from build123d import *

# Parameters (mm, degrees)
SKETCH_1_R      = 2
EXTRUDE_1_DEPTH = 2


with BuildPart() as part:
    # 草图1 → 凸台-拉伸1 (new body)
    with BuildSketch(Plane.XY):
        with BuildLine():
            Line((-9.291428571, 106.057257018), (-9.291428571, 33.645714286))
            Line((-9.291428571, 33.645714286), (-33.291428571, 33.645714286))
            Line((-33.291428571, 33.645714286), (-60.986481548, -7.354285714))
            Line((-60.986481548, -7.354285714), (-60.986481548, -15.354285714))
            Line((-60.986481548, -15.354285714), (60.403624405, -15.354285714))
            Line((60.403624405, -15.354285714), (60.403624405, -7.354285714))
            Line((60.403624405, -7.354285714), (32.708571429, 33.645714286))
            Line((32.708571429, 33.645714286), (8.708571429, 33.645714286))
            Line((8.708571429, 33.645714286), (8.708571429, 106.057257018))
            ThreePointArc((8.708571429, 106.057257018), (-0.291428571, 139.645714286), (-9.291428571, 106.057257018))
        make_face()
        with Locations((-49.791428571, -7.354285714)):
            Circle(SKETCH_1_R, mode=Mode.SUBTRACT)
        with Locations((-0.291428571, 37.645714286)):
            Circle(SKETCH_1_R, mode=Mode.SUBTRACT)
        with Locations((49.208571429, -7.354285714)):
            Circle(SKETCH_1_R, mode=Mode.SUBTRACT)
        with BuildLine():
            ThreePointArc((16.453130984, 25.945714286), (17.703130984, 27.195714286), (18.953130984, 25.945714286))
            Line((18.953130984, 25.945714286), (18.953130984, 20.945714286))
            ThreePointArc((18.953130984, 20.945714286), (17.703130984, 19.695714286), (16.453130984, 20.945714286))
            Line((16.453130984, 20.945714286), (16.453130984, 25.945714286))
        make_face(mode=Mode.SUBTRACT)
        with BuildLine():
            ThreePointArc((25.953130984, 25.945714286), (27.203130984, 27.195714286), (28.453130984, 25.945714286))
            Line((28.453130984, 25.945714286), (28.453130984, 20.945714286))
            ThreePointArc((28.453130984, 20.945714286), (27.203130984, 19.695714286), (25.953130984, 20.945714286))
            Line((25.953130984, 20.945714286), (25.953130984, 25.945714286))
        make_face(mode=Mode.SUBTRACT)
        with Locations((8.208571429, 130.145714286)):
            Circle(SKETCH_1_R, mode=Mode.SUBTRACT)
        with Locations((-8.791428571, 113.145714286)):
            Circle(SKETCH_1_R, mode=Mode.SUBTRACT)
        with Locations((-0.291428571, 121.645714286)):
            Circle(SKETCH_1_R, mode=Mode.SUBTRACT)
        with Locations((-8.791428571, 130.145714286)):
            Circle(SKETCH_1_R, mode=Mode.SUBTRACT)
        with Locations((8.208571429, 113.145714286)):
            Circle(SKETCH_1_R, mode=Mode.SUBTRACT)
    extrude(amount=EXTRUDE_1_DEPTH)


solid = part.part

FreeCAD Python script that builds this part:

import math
import FreeCAD as App
import Part
import Sketcher

V = App.Vector

doc = App.newDocument("Part")
body = doc.addObject("PartDesign::Body", "Body")

# Sketch on XY plane
sketch1 = doc.addObject("Sketcher::SketchObject", "Sketch")
body.addObject(sketch1)
sketch1.AttachmentSupport = (doc.XY_Plane, [""])
sketch1.MapMode = "FlatFace"
sketch1.addGeometry(Part.LineSegment(V(-9.3, 106.1, 0), V(-9.3, 33.6, 0)), False)
sketch1.addGeometry(Part.LineSegment(V(-9.3, 33.6, 0), V(-33.3, 33.6, 0)), False)
sketch1.addGeometry(Part.LineSegment(V(-33.3, 33.6, 0), V(-61, -7.4, 0)), False)
sketch1.addGeometry(Part.LineSegment(V(-61, -7.4, 0), V(-61, -15.4, 0)), False)
sketch1.addGeometry(Part.LineSegment(V(-61, -15.4, 0), V(60.4, -15.4, 0)), False)
sketch1.addGeometry(Part.LineSegment(V(60.4, -15.4, 0), V(60.4, -7.4, 0)), False)
sketch1.addGeometry(Part.LineSegment(V(60.4, -7.4, 0), V(32.7, 33.6, 0)), False)
sketch1.addGeometry(Part.LineSegment(V(32.7, 33.6, 0), V(8.7, 33.6, 0)), False)
sketch1.addGeometry(Part.LineSegment(V(8.7, 33.6, 0), V(8.7, 106.1, 0)), False)
sketch1.addGeometry(Part.ArcOfCircle(Part.Circle(V(-0.3, 121.6, 0), V(0, 0, 1), 18), math.radians(-60), math.radians(240)), False)
sketch1.addGeometry(Part.Circle(V(-49.8, -7.4, 0), V(0, 0, 1), 2), False)
sketch1.addGeometry(Part.Circle(V(-0.3, 37.6, 0), V(0, 0, 1), 2), False)
sketch1.addGeometry(Part.LineSegment(V(16.5, 20.9, 0), V(16.5, 25.9, 0)), False)
sketch1.addGeometry(Part.ArcOfCircle(Part.Circle(V(17.7, 25.9, 0), V(0, 0, 1), 1.2), math.radians(0), math.radians(180)), False)
sketch1.addGeometry(Part.LineSegment(V(19, 25.9, 0), V(19, 20.9, 0)), False)
sketch1.addGeometry(Part.ArcOfCircle(Part.Circle(V(17.7, 20.9, 0), V(0, 0, 1), 1.2), math.radians(180), math.radians(360)), False)
sketch1.addGeometry(Part.Circle(V(49.2, -7.4, 0), V(0, 0, 1), 2), False)
sketch1.addGeometry(Part.LineSegment(V(26, 20.9, 0), V(26, 25.9, 0)), False)
sketch1.addGeometry(Part.ArcOfCircle(Part.Circle(V(27.2, 25.9, 0), V(0, 0, 1), 1.2), math.radians(0), math.radians(180)), False)
sketch1.addGeometry(Part.LineSegment(V(28.5, 25.9, 0), V(28.5, 20.9, 0)), False)
sketch1.addGeometry(Part.ArcOfCircle(Part.Circle(V(27.2, 20.9, 0), V(0, 0, 1), 1.2), math.radians(180), math.radians(360)), False)
sketch1.addGeometry(Part.Circle(V(-8.8, 113.1, 0), V(0, 0, 1), 2), False)
sketch1.addGeometry(Part.Circle(V(-0.3, 121.6, 0), V(0, 0, 1), 2), False)
sketch1.addGeometry(Part.Circle(V(-8.8, 130.1, 0), V(0, 0, 1), 2), False)
sketch1.addGeometry(Part.Circle(V(8.2, 113.1, 0), V(0, 0, 1), 2), False)
sketch1.addGeometry(Part.Circle(V(8.2, 130.1, 0), V(0, 0, 1), 2), False)
sketch1.addConstraint(Sketcher.Constraint("Coincident", 0, 2, 1, 1))
sketch1.addConstraint(Sketcher.Constraint("Coincident", 1, 2, 2, 1))
sketch1.addConstraint(Sketcher.Constraint("Coincident", 2, 2, 3, 1))
sketch1.addConstraint(Sketcher.Constraint("Coincident", 3, 2, 4, 1))
sketch1.addConstraint(Sketcher.Constraint("Coincident", 4, 2, 5, 1))
sketch1.addConstraint(Sketcher.Constraint("Coincident", 5, 2, 6, 1))
sketch1.addConstraint(Sketcher.Constraint("Coincident", 6, 2, 7, 1))
sketch1.addConstraint(Sketcher.Constraint("Coincident", 7, 2, 8, 1))
sketch1.addConstraint(Sketcher.Constraint("Coincident", 8, 2, 9, 1))
sketch1.addConstraint(Sketcher.Constraint("Coincident", 9, 2, 0, 1))
sketch1.addConstraint(Sketcher.Constraint("Tangent", 12, 2, 13, 2))
sketch1.addConstraint(Sketcher.Constraint("Tangent", 13, 1, 14, 1))
sketch1.addConstraint(Sketcher.Constraint("Tangent", 14, 2, 15, 2))
sketch1.addConstraint(Sketcher.Constraint("Tangent", 15, 1, 12, 1))
sketch1.addConstraint(Sketcher.Constraint("Tangent", 17, 2, 18, 2))
sketch1.addConstraint(Sketcher.Constraint("Tangent", 18, 1, 19, 1))
sketch1.addConstraint(Sketcher.Constraint("Tangent", 19, 2, 20, 2))
sketch1.addConstraint(Sketcher.Constraint("Tangent", 20, 1, 17, 1))
sketch1.addConstraint(Sketcher.Constraint("Vertical", 0))
sketch1.addConstraint(Sketcher.Constraint("Horizontal", 1))
sketch1.addConstraint(Sketcher.Constraint("Vertical", 3))
sketch1.addConstraint(Sketcher.Constraint("Horizontal", 4))
sketch1.addConstraint(Sketcher.Constraint("Vertical", 5))
sketch1.addConstraint(Sketcher.Constraint("Horizontal", 7))
sketch1.addConstraint(Sketcher.Constraint("Vertical", 8))
sketch1.addConstraint(Sketcher.Constraint("Vertical", 12))
sketch1.addConstraint(Sketcher.Constraint("Vertical", 14))
sketch1.addConstraint(Sketcher.Constraint("Vertical", 17))
sketch1.addConstraint(Sketcher.Constraint("Vertical", 19))
sketch1.addConstraint(Sketcher.Constraint("Coincident", 22, 3, 9, 3))
sketch1.addConstraint(Sketcher.Constraint("Equal", 10, 11))
sketch1.addConstraint(Sketcher.Constraint("Equal", 11, 16))
sketch1.addConstraint(Sketcher.Constraint("Equal", 15, 18))
sketch1.addConstraint(Sketcher.Constraint("Equal", 16, 21))
sketch1.addConstraint(Sketcher.Constraint("Equal", 21, 22))
sketch1.addConstraint(Sketcher.Constraint("Equal", 22, 23))
sketch1.addConstraint(Sketcher.Constraint("Equal", 23, 24))
sketch1.addConstraint(Sketcher.Constraint("Equal", 24, 25))
sketch1.addConstraint(Sketcher.Constraint("Horizontal", 10, 3, 16, 3))
sketch1.addConstraint(Sketcher.Constraint("Horizontal", 13, 3, 18, 3))
sketch1.addConstraint(Sketcher.Constraint("Horizontal", 15, 3, 20, 3))
sketch1.addConstraint(Sketcher.Constraint("Horizontal", 21, 3, 24, 3))
sketch1.addConstraint(Sketcher.Constraint("Horizontal", 23, 3, 25, 3))
sketch1.addConstraint(Sketcher.Constraint("Horizontal", 16, 3, 2, 2))
sketch1.addConstraint(Sketcher.Constraint("Horizontal", 2, 2, 5, 2))
sketch1.addConstraint(Sketcher.Constraint("Horizontal", 1, 2, 6, 2))
sketch1.addConstraint(Sketcher.Constraint("Horizontal", 8, 2, 9, 2))
sketch1.addConstraint(Sketcher.Constraint("Vertical", 9, 3, 11, 3))
sketch1.addConstraint(Sketcher.Constraint("Vertical", 21, 3, 23, 3))
sketch1.addConstraint(Sketcher.Constraint("Vertical", 24, 3, 25, 3))
sketch1.addConstraint(Sketcher.Constraint("Equal", 1, 7))
sketch1.addConstraint(Sketcher.Constraint("Equal", 2, 6))
sketch1.addConstraint(Sketcher.Constraint("Diameter", 10, 4.0))
sketch1.addConstraint(Sketcher.Constraint("Radius", 9, 18.0))
sketch1.addConstraint(Sketcher.Constraint("DistanceX", 1, 2, 1, 1, 24.0))
sketch1.addConstraint(Sketcher.Constraint("DistanceY", 3, 2, 3, 1, 8.0))
sketch1.addConstraint(Sketcher.Constraint("DistanceY", 12, 1, 12, 2, 5.0))
sketch1.addConstraint(Sketcher.Constraint("Radius", 13, 1.25))
sketch1.addConstraint(Sketcher.Constraint("DistanceY", 10, 3, 9, 3, 129.0))
sketch1.addConstraint(Sketcher.Constraint("DistanceY", 10, 3, 11, 3, 45.0))
sketch1.addConstraint(Sketcher.Constraint("DistanceX", 10, 3, 16, 3, 99.0))
sketch1.addConstraint(Sketcher.Constraint("DistanceY", 21, 3, 23, 3, 17.0))
sketch1.addConstraint(Sketcher.Constraint("DistanceX", 21, 3, 24, 3, 17.0))
sketch1.addConstraint(Sketcher.Constraint("DistanceX", 0, 2, 11, 3, 9.0))
sketch1.addConstraint(Sketcher.Constraint("DistanceY", 0, 2, 11, 3, 4.0))
sketch1.addConstraint(Sketcher.Constraint("DistanceX", 13, 1, 17, 2, 7.0))
sketch1.addConstraint(Sketcher.Constraint("DistanceX", 10, 3, 9, 3, 49.5))
sketch1.addConstraint(Sketcher.Constraint("DistanceY", 13, 3, 11, 3, 11.7))
sketch1.addConstraint(Sketcher.Constraint("DistanceX", 21, 3, 9, 3, 8.5))
sketch1.addConstraint(Sketcher.Constraint("DistanceY", 21, 3, 9, 3, 8.5))
sketch1.addConstraint(Sketcher.Constraint("Distance", 2, 49.477429))
sketch1.addConstraint(Sketcher.Constraint("DistanceX", 9, 3, -1, 1, 0.291429))
sketch1.addConstraint(Sketcher.Constraint("DistanceX", -1, 1, 13, 3, 17.703131))
sketch1.addConstraint(Sketcher.Constraint("DistanceY", -1, 1, 9, 3, 121.645714))
pad1 = doc.addObject("PartDesign::Pad", "Pad")
body.addObject(pad1)
pad1.Profile = sketch1
pad1.Length = 2

doc.recompute()
